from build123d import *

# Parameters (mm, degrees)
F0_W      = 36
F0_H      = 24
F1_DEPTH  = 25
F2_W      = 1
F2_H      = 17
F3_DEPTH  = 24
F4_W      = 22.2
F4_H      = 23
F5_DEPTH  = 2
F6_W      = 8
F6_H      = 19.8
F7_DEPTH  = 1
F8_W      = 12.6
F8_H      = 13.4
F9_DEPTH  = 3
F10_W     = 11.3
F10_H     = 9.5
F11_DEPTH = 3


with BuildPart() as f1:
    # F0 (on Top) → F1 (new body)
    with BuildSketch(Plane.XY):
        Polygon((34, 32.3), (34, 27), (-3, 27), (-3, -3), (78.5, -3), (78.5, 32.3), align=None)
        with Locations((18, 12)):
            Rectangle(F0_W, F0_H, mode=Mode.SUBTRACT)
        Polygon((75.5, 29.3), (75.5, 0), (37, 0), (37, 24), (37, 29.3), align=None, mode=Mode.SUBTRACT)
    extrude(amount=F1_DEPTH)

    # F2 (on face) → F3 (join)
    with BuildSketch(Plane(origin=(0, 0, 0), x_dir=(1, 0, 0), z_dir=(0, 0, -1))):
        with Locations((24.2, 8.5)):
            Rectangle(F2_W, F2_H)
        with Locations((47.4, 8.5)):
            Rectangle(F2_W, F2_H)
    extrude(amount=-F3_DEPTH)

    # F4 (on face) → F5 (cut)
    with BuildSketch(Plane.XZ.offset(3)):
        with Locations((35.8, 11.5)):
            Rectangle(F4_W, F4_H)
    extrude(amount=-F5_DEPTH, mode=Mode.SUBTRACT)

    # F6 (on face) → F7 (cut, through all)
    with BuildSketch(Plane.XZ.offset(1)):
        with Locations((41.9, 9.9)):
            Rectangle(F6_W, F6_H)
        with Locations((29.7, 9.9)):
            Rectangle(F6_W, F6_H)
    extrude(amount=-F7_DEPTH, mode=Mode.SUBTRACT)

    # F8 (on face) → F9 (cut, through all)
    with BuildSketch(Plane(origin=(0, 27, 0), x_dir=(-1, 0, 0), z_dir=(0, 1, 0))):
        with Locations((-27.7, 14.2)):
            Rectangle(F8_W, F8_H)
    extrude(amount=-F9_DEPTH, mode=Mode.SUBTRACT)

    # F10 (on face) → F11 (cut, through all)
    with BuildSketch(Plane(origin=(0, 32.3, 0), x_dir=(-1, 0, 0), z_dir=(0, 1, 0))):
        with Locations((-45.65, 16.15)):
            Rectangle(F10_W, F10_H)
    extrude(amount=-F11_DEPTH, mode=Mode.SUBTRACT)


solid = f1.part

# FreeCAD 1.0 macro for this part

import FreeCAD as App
import Part
import Sketcher
from FreeCAD import Vector
Q = App.Units.Quantity


def add_polygon(sketch, points):
    """Adds a closed chain of lines whose ends are joined by coincident constraints."""
    first, n = sketch.GeometryCount, len(points)
    for a, b in zip(points, points[1:] + points[:1]):
        sketch.addGeometry(Part.LineSegment(App.Vector(*a, 0), App.Vector(*b, 0)), False)
    for i in range(n):
        sketch.addConstraint(Sketcher.Constraint("Coincident", first + i, 2, first + (i + 1) % n, 1))

doc = App.newDocument("Part")
body = doc.addObject("PartDesign::Body", "Body")

# Sketch on XY plane
sketch1 = body.newObject("Sketcher::SketchObject", "Sketch")
sketch1.AttachmentSupport = (doc.getObject("XY_Plane"), [""])
sketch1.MapMode = "FlatFace"
add_polygon(sketch1, [(34, 32), (34, 27), (-3, 27), (-3, -3), (78, -3), (78, 32)])  # lines 0-5
add_polygon(sketch1, [(36, 0), (0, 0), (0, 24), (36, 24)])  # lines 6-9
add_polygon(sketch1, [(37, 29), (76, 29), (76, 0), (37, 0)])  # lines 10-13
sketch1.addConstraint([
    Sketcher.Constraint("Vertical", 0),
    Sketcher.Constraint("Horizontal", 1),
    Sketcher.Constraint("Vertical", 2),
    Sketcher.Constraint("Horizontal", 3),
    Sketcher.Constraint("Vertical", 4),
    Sketcher.Constraint("Horizontal", 5),
    Sketcher.Constraint("Horizontal", 6),
    Sketcher.Constraint("Vertical", 7),
    Sketcher.Constraint("Horizontal", 8),
    Sketcher.Constraint("Vertical", 9),
    Sketcher.Constraint("Horizontal", 10),
    Sketcher.Constraint("Vertical", 11),
    Sketcher.Constraint("Horizontal", 12),
    Sketcher.Constraint("Vertical", 13),
    Sketcher.Constraint("Coincident", 6, 2, -1, 1),
    Sketcher.Constraint("PointOnObject", 11, 2, -1),
    Sketcher.Constraint("DistanceX", 1, 2, 1, 1, Q("37 mm")),
    Sketcher.Constraint("DistanceX", 6, 2, 6, 1, Q("36 mm")),
    Sketcher.Constraint("DistanceY", 2, 2, 2, 1, Q("30 mm")),
    Sketcher.Constraint("DistanceY", 7, 1, 7, 2, Q("24 mm")),
    Sketcher.Constraint("DistanceX", 3, 1, 3, 2, Q("81.5 mm")),
    Sketcher.Constraint("DistanceX", 10, 1, 10, 2, Q("38.5 mm")),
    Sketcher.Constraint("DistanceY", 0, 2, 0, 1, Q("5.3 mm")),
    Sketcher.Constraint("DistanceY", 11, 2, 11, 1, Q("29.3 mm")),
    Sketcher.Constraint("DistanceX", -1, 1, 0, 2, Q("34 mm")),
    Sketcher.Constraint("DistanceY", -1, 1, 0, 2, Q("27 mm")),
    Sketcher.Constraint("DistanceX", -1, 1, 12, 2, Q("37 mm")),
])
pad1 = body.newObject("PartDesign::Pad", "Pad")
pad1.Profile = sketch1
pad1.Length = 25

# Sketch on XY plane
sketch2 = body.newObject("Sketcher::SketchObject", "Sketch001")
sketch2.AttachmentSupport = (doc.getObject("XY_Plane"), [""])
sketch2.MapMode = "FlatFace"
add_polygon(sketch2, [(23.7, -17), (23.7, 0), (24.7, 0), (24.7, -17)])  # lines 0-3
add_polygon(sketch2, [(46.9, -17), (46.9, 0), (47.9, 0), (47.9, -17)])  # lines 4-7
sketch2.addConstraint([
    Sketcher.Constraint("Vertical", 0),
    Sketcher.Constraint("Horizontal", 1),
    Sketcher.Constraint("Vertical", 2),
    Sketcher.Constraint("Horizontal", 3),
    Sketcher.Constraint("Vertical", 4),
    Sketcher.Constraint("Horizontal", 5),
    Sketcher.Constraint("Vertical", 6),
    Sketcher.Constraint("Horizontal", 7),
    Sketcher.Constraint("PointOnObject", 0, 2, -1),
    Sketcher.Constraint("PointOnObject", 4, 2, -1),
    Sketcher.Constraint("Horizontal", 3, 2, 6, 2),
    Sketcher.Constraint("Equal", 3, 5),
    Sketcher.Constraint("DistanceX", 1, 1, 1, 2, Q("1 mm")),
    Sketcher.Constraint("DistanceY", 0, 1, 0, 2, Q("17 mm")),
    Sketcher.Constraint("DistanceX", -1, 1, 0, 2, Q("23.7 mm")),
    Sketcher.Constraint("DistanceX", -1, 1, 4, 2, Q("46.9 mm")),
])
pad2 = body.newObject("PartDesign::Pad", "Pad001")
pad2.Profile = sketch2
pad2.Length = 24

# Sketch on XZ plane
sketch3 = body.newObject("Sketcher::SketchObject", "Sketch002")
sketch3.AttachmentSupport = (doc.getObject("XZ_Plane"), [""])
sketch3.MapMode = "FlatFace"
sketch3.AttachmentOffset = App.Placement(Vector(0, 0, 3), App.Rotation())
add_polygon(sketch3, [(25, 23), (25, 0), (47, 0), (47, 23)])  # lines 0-3
sketch3.addConstraint([
    Sketcher.Constraint("Vertical", 0),
    Sketcher.Constraint("Horizontal", 1),
    Sketcher.Constraint("Vertical", 2),
    Sketcher.Constraint("Horizontal", 3),
    Sketcher.Constraint("PointOnObject", 0, 2, -1),
    Sketcher.Constraint("DistanceY", 0, 2, 0, 1, Q("23 mm")),
    Sketcher.Constraint("DistanceX", 1, 1, 1, 2, Q("22.2 mm")),
    Sketcher.Constraint("DistanceX", -1, 1, 0, 2, Q("24.7 mm")),
])
pocket1 = body.newObject("PartDesign::Pocket", "Pocket")
pocket1.Profile = sketch3
pocket1.Length = 2

# Sketch on XZ plane
sketch4 = body.newObject("Sketcher::SketchObject", "Sketch003")
sketch4.AttachmentSupport = (doc.getObject("XZ_Plane"), [""])
sketch4.MapMode = "FlatFace"
sketch4.AttachmentOffset = App.Placement(Vector(0, 0, 1), App.Rotation())
add_polygon(sketch4, [(38, 20), (38, 0), (46, 0), (46, 20)])  # lines 0-3
add_polygon(sketch4, [(26, 20), (26, 0), (34, 0), (34, 20)])  # lines 4-7
sketch4.addConstraint([
    Sketcher.Constraint("Vertical", 0),
    Sketcher.Constraint("Horizontal", 1),
    Sketcher.Constraint("Vertical", 2),
    Sketcher.Constraint("Horizontal", 3),
    Sketcher.Constraint("Vertical", 4),
    Sketcher.Constraint("Horizontal", 5),
    Sketcher.Constraint("Vertical", 6),
    Sketcher.Constraint("Horizontal", 7),
    Sketcher.Constraint("PointOnObject", 0, 2, -1),
    Sketcher.Constraint("PointOnObject", 4, 2, -1),
    Sketcher.Constraint("Horizontal", 3, 2, 6, 2),
    Sketcher.Constraint("Equal", 3, 5),
    Sketcher.Constraint("DistanceX", 1, 1, 1, 2, Q("8 mm")),
    Sketcher.Constraint("DistanceY", 0, 2, 0, 1, Q("19.8 mm")),
    Sketcher.Constraint("DistanceX", -1, 1, 0, 2, Q("37.9 mm")),
    Sketcher.Constraint("DistanceX", -1, 1, 4, 2, Q("25.7 mm")),
])
pocket2 = body.newObject("PartDesign::Pocket", "Pocket001")
pocket2.Profile = sketch4
pocket2.Length = 1

# Sketch on XZ plane
sketch5 = body.newObject("Sketcher::SketchObject", "Sketch004")
sketch5.AttachmentSupport = (doc.getObject("XZ_Plane"), [""])
sketch5.MapMode = "FlatFace"
sketch5.AttachmentOffset = App.Placement(Vector(0, 0, -27), App.Rotation())
add_polygon(sketch5, [(34, 21), (34, 8), (21, 8), (21, 21)])  # lines 0-3
sketch5.addConstraint([
    Sketcher.Constraint("Vertical", 0),
    Sketcher.Constraint("Horizontal", 1),
    Sketcher.Constraint("Vertical", 2),
    Sketcher.Constraint("Horizontal", 3),
    Sketcher.Constraint("DistanceX", 1, 2, 1, 1, Q("12.6 mm")),
    Sketcher.Constraint("DistanceY", 0, 2, 0, 1, Q("13.4 mm")),
    Sketcher.Constraint("DistanceX", -1, 1, 0, 2, Q("34 mm")),
    Sketcher.Constraint("DistanceY", -1, 1, 0, 2, Q("7.5 mm")),
])
pocket3 = body.newObject("PartDesign::Pocket", "Pocket002")
pocket3.Profile = sketch5
pocket3.Length = 3
pocket3.Reversed = True

# Sketch on XZ plane
sketch6 = body.newObject("Sketcher::SketchObject", "Sketch005")
sketch6.AttachmentSupport = (doc.getObject("XZ_Plane"), [""])
sketch6.MapMode = "FlatFace"
sketch6.AttachmentOffset = App.Placement(Vector(0, 0, -32.3), App.Rotation())
add_polygon(sketch6, [(51, 21), (51, 11), (40, 11), (40, 21)])  # lines 0-3
sketch6.addConstraint([
    Sketcher.Constraint("Vertical", 0),
    Sketcher.Constraint("Horizontal", 1),
    Sketcher.Constraint("Vertical", 2),
    Sketcher.Constraint("Horizontal", 3),
    Sketcher.Constraint("DistanceX", 1, 2, 1, 1, Q("11.3 mm")),
    Sketcher.Constraint("DistanceY", 0, 2, 0, 1, Q("9.5 mm")),
    Sketcher.Constraint("DistanceX", -1, 1, 1, 2, Q("40 mm")),
    Sketcher.Constraint("DistanceY", -1, 1, 0, 2, Q("11.4 mm")),
])
pocket4 = body.newObject("PartDesign::Pocket", "Pocket003")
pocket4.Profile = sketch6
pocket4.Length = 3
pocket4.Reversed = True

doc.recompute()
